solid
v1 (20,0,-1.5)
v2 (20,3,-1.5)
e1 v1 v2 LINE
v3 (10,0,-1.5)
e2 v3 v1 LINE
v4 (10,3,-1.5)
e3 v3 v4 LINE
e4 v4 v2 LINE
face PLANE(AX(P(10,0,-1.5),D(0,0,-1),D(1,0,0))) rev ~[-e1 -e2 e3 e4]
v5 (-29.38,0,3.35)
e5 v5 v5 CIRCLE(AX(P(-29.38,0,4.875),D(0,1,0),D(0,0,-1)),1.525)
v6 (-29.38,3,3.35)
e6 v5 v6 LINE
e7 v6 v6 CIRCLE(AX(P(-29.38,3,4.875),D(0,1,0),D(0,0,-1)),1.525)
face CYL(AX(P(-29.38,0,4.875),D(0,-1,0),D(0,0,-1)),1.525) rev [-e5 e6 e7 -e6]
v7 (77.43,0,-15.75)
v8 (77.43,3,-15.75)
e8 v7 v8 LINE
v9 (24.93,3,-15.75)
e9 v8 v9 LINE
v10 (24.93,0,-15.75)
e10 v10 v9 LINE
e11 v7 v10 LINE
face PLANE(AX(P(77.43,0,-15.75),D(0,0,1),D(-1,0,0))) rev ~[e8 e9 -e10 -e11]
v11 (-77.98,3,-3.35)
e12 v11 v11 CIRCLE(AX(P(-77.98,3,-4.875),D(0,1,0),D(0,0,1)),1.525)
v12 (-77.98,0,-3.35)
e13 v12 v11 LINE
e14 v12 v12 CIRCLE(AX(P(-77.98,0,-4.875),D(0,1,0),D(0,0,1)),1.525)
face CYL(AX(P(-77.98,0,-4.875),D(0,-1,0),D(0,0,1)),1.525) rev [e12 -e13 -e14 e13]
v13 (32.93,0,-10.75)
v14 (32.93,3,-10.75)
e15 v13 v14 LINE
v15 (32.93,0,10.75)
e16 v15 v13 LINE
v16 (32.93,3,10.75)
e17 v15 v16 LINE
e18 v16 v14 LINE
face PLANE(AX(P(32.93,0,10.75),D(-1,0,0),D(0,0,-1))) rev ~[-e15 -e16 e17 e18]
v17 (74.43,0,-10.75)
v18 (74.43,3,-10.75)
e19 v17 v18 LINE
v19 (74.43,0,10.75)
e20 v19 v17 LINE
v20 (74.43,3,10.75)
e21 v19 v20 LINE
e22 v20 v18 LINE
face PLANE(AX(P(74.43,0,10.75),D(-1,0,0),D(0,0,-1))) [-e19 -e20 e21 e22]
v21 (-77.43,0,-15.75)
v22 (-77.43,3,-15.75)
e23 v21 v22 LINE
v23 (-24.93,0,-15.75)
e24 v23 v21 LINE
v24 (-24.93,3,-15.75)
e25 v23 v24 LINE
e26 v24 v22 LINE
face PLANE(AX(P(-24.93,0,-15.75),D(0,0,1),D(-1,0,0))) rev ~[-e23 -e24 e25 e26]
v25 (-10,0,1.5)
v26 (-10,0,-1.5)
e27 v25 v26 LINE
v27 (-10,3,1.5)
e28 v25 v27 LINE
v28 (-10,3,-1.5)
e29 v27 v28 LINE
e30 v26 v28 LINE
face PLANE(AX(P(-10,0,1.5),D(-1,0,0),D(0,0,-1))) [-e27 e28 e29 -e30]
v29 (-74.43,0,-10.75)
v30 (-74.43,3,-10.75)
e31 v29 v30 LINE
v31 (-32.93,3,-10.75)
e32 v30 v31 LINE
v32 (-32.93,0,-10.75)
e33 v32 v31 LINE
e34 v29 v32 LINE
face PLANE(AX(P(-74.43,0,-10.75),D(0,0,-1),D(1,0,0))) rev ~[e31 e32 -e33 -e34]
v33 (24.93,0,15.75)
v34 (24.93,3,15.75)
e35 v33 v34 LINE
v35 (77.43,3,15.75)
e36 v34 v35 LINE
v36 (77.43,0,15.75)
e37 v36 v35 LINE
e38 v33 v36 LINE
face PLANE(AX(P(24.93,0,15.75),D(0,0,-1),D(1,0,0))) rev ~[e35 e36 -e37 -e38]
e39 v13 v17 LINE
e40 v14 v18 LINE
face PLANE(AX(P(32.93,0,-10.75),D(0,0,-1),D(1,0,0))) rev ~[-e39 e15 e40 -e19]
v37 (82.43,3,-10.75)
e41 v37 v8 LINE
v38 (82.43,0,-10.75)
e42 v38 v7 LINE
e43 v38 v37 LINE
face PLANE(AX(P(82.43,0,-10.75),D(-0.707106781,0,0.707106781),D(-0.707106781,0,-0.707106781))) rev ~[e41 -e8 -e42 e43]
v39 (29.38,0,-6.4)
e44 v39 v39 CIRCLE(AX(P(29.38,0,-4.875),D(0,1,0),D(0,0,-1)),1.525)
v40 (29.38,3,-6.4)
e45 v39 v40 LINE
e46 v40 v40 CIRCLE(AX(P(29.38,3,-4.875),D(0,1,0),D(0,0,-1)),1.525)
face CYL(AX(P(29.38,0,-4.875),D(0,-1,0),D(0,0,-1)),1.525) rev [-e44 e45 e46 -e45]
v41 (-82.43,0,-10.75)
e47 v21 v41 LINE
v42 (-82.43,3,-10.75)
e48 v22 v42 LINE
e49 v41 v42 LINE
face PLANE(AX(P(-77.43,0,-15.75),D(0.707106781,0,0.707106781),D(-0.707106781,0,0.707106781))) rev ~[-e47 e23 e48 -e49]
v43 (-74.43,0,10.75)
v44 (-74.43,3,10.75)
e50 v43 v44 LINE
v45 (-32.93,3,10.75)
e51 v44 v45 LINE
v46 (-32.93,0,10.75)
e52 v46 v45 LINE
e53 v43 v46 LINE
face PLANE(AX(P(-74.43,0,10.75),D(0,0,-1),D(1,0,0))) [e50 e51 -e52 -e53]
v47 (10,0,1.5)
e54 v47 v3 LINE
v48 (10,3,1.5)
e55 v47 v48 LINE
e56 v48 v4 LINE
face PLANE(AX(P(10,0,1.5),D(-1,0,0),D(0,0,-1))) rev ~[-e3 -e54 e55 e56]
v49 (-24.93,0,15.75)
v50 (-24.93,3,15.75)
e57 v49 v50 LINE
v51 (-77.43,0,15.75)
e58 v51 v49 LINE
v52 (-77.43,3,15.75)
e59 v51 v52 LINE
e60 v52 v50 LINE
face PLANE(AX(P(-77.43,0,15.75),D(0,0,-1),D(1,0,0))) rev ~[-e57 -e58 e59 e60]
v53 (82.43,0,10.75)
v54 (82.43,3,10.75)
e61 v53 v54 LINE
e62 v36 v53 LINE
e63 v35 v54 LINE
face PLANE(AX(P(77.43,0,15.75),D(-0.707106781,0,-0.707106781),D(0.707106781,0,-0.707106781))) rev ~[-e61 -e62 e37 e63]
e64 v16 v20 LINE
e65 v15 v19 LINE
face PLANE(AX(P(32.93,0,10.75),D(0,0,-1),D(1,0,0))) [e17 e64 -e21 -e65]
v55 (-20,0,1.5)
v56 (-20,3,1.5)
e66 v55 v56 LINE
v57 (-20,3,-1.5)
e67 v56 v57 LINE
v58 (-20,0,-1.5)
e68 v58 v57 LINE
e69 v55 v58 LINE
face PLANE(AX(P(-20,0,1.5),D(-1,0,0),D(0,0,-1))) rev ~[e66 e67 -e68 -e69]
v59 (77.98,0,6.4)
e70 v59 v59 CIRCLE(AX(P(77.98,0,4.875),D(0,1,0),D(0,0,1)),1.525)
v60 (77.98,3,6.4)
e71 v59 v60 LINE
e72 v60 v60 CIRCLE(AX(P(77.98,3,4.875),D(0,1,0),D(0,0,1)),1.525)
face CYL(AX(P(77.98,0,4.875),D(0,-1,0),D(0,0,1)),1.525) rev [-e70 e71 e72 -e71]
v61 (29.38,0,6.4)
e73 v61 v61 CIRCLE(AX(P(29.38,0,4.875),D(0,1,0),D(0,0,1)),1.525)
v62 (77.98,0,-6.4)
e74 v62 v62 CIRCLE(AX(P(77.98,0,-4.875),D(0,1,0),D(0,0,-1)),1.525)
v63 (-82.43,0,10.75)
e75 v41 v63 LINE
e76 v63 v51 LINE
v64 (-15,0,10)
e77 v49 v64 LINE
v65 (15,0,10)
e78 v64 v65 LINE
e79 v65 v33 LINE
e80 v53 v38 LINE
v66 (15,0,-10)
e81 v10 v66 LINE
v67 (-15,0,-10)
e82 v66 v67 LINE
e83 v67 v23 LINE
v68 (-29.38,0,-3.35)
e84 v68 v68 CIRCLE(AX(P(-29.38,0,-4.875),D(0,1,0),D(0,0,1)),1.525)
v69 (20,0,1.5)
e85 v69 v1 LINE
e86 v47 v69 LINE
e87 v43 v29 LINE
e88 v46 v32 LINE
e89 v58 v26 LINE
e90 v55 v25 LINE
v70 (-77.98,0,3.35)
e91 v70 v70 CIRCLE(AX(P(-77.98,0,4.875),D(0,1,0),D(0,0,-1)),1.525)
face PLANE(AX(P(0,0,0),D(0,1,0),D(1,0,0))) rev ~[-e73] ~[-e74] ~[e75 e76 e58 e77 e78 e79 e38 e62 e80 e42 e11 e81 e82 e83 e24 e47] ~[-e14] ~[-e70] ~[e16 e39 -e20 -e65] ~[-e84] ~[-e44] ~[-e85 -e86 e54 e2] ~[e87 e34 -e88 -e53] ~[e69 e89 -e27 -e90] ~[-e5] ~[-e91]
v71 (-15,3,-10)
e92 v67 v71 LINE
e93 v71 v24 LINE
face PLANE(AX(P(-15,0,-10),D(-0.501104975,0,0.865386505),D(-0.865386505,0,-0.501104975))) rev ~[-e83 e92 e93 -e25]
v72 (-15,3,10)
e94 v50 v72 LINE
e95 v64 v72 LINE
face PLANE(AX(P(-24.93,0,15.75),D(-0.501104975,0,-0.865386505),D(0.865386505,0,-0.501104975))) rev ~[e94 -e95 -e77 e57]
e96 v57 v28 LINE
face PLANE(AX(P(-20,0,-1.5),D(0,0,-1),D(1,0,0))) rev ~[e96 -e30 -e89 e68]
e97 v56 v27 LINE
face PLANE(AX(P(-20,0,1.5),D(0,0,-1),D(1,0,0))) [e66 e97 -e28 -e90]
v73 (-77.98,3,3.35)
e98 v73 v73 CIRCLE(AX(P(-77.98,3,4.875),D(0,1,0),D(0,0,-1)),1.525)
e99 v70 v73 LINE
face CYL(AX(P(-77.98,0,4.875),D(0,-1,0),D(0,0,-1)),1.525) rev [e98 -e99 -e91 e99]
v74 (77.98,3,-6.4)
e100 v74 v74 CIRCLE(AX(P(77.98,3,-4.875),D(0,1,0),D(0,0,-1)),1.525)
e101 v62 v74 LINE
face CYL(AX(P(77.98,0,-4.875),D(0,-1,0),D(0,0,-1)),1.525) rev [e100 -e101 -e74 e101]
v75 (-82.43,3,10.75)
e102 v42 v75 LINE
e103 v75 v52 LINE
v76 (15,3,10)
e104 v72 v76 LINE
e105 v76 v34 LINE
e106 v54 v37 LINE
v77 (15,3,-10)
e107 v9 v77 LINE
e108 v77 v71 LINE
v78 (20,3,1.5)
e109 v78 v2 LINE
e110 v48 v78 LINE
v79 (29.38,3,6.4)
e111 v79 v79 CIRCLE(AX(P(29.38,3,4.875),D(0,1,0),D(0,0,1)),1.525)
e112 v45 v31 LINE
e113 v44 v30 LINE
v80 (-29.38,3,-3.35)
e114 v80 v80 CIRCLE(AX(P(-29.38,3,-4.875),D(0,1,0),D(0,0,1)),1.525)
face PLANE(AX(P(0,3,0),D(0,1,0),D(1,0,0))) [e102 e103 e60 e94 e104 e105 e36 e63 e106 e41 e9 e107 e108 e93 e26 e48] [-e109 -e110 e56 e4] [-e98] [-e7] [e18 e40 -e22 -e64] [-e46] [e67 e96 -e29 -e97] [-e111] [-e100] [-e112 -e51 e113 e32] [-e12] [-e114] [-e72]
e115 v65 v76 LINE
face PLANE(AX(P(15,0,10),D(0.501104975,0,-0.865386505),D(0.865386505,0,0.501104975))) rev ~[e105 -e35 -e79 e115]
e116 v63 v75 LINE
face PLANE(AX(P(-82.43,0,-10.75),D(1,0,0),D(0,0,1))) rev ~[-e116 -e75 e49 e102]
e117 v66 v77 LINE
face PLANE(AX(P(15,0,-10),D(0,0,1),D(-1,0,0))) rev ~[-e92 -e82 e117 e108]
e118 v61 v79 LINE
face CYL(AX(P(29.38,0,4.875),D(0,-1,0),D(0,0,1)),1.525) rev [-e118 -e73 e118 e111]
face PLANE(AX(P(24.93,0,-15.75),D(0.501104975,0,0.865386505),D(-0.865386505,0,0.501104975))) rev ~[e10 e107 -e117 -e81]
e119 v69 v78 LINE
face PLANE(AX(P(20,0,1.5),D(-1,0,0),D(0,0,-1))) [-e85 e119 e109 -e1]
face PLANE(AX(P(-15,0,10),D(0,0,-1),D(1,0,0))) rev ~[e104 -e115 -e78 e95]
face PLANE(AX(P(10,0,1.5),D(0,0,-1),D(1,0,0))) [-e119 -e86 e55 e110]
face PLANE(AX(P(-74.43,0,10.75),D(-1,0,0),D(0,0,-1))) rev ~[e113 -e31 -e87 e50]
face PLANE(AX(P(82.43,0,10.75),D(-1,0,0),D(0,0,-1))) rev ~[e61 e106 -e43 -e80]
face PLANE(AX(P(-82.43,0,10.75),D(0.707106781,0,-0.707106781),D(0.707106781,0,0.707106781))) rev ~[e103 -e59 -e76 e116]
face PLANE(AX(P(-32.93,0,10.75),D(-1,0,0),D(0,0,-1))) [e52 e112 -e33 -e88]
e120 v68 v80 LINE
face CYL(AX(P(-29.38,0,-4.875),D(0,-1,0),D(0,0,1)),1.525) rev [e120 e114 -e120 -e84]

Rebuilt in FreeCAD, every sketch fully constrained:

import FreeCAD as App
import Part
import Sketcher


def add_polygon(sketch, points):
    """Adds a closed chain of lines whose ends are joined by coincident constraints."""
    first, n = sketch.GeometryCount, len(points)
    for a, b in zip(points, points[1:] + points[:1]):
        sketch.addGeometry(Part.LineSegment(App.Vector(*a, 0), App.Vector(*b, 0)), False)
    for i in range(n):
        sketch.addConstraint(Sketcher.Constraint("Coincident", first + i, 2, first + (i + 1) % n, 1))

doc = App.newDocument("Part")
body = doc.addObject("PartDesign::Body", "Body")

sketch1 = body.newObject("Sketcher::SketchObject", "Sketch")
sketch1.AttachmentSupport = (doc.getObject("XZ_Plane"), [""])
sketch1.MapMode = "FlatFace"
add_polygon(sketch1, [(15, -10), (-15, -10), (-24.93, -15.75), (-77.43, -15.75), (-82.43, -10.75), (-82.43, 10.75), (-77.43, 15.75), (-24.93, 15.75), (-15, 10), (15, 10), (24.93, 15.75), (77.43, 15.75), (82.43, 10.75), (82.43, -10.75), (77.43, -15.75), (24.93, -15.75)])
sketch1.addGeometry(Part.Circle(App.Vector(-77.98, 4.875, 0), App.Vector(0, 0, 1), 1.525), False)
sketch1.addGeometry(Part.Circle(App.Vector(-29.38, 4.875, 0), App.Vector(0, 0, 1), 1.525), False)
sketch1.addGeometry(Part.Circle(App.Vector(29.38, 4.875, 0), App.Vector(0, 0, 1), 1.525), False)
sketch1.addGeometry(Part.Circle(App.Vector(77.98, 4.875, 0), App.Vector(0, 0, 1), 1.525), False)
add_polygon(sketch1, [(-32.93, 10.75), (-74.43, 10.75), (-74.43, -10.75), (-32.93, -10.75)])
sketch1.addGeometry(Part.Circle(App.Vector(-77.98, -4.875, 0), App.Vector(0, 0, 1), 1.525), False)
add_polygon(sketch1, [(-10, 1.5), (-20, 1.5), (-20, -1.5), (-10, -1.5)])
sketch1.addGeometry(Part.Circle(App.Vector(-29.38, -4.875, 0), App.Vector(0, 0, 1), 1.525), False)
add_polygon(sketch1, [(20, 1.5), (10, 1.5), (10, -1.5), (20, -1.5)])
sketch1.addGeometry(Part.Circle(App.Vector(29.38, -4.875, 0), App.Vector(0, 0, 1), 1.525), False)
add_polygon(sketch1, [(74.43, 10.75), (32.93, 10.75), (32.93, -10.75), (74.43, -10.75)])
sketch1.addGeometry(Part.Circle(App.Vector(77.98, -4.875, 0), App.Vector(0, 0, 1), 1.525), False)
sketch1.addConstraint([
    Sketcher.Constraint("Horizontal", 0),
    Sketcher.Constraint("Horizontal", 2),
    Sketcher.Constraint("Vertical", 4),
    Sketcher.Constraint("Horizontal", 6),
    Sketcher.Constraint("Horizontal", 8),
    Sketcher.Constraint("Horizontal", 10),
    Sketcher.Constraint("Vertical", 12),
    Sketcher.Constraint("Horizontal", 14),
    Sketcher.Constraint("Horizontal", 20),
    Sketcher.Constraint("Vertical", 21),
    Sketcher.Constraint("Horizontal", 22),
    Sketcher.Constraint("Vertical", 23),
    Sketcher.Constraint("Horizontal", 25),
    Sketcher.Constraint("Vertical", 26),
    Sketcher.Constraint("Horizontal", 27),
    Sketcher.Constraint("Vertical", 28),
    Sketcher.Constraint("Horizontal", 30),
    Sketcher.Constraint("Vertical", 31),
    Sketcher.Constraint("Horizontal", 32),
    Sketcher.Constraint("Vertical", 33),
    Sketcher.Constraint("Horizontal", 35),
    Sketcher.Constraint("Vertical", 36),
    Sketcher.Constraint("Horizontal", 37),
    Sketcher.Constraint("Vertical", 38),
    Sketcher.Constraint("Equal", 16, 17),
    Sketcher.Constraint("Equal", 17, 18),
    Sketcher.Constraint("Equal", 18, 19),
    Sketcher.Constraint("Equal", 19, 24),
    Sketcher.Constraint("Equal", 24, 29),
    Sketcher.Constraint("Equal", 29, 34),
    Sketcher.Constraint("Equal", 34, 39),
    Sketcher.Constraint("Symmetric", 19, 3, 24, 3, -1, 1),
    Sketcher.Constraint("Symmetric", 18, 3, 29, 3, -1, 1),
    Sketcher.Constraint("Symmetric", 17, 3, 34, 3, -1, 1),
    Sketcher.Constraint("Symmetric", 16, 3, 39, 3, -1, 1),
    Sketcher.Constraint("Symmetric", 0, 2, 8, 2, -1, 1),
    Sketcher.Constraint("Symmetric", 1, 2, 9, 2, -1, 1),
    Sketcher.Constraint("Symmetric", 3, 2, 11, 2, -1, 1),
    Sketcher.Constraint("Symmetric", 5, 2, 13, 2, -1, 1),
    Sketcher.Constraint("Symmetric", 27, 2, 30, 2, -1, 1),
    Sketcher.Constraint("Symmetric", 25, 2, 32, 2, -1, 1),
    Sketcher.Constraint("Symmetric", 22, 2, 35, 2, -1, 1),
    Sketcher.Constraint("Symmetric", 20, 2, 37, 2, -1, 1),
    Sketcher.Constraint("Symmetric", 17, 3, 18, 3, -2),
    Sketcher.Constraint("Symmetric", 16, 3, 19, 3, -2),
    Sketcher.Constraint("Symmetric", 6, 2, 9, 2, -2),
    Sketcher.Constraint("Perpendicular", 3, 5),
    Sketcher.Constraint("Perpendicular", 5, 11),
    Sketcher.Constraint("Perpendicular", 11, 13),
    Sketcher.Constraint("Parallel", 7, 15),
    Sketcher.Constraint("Horizontal", 16, 3, 17, 3),
    Sketcher.Constraint("Horizontal", 4, 2, 11, 2),
    Sketcher.Constraint("Horizontal", 11, 2, 20, 2),
    Sketcher.Constraint("Horizontal", 12, 2, 21, 2),
    Sketcher.Constraint("Horizontal", 28, 2, 30, 2),
    Sketcher.Constraint("Vertical", 2, 2, 5, 2),
    Sketcher.Constraint("Vertical", 0, 2, 7, 2),
    Sketcher.Constraint("Vertical", 9, 2, 14, 2),
    Sketcher.Constraint("Diameter", 16, 3.05),
    Sketcher.Constraint("DistanceX", 0, 2, 0, 1, 30.0),
    Sketcher.Constraint("DistanceX", 25, 2, 25, 1, 10.0),
    Sketcher.Constraint("DistanceY", 26, 2, 26, 1, 3.0),
    Sketcher.Constraint("DistanceX", 2, 2, 2, 1, 52.5),
    Sketcher.Constraint("DistanceX", 20, 2, 20, 1, 41.5),
    Sketcher.Constraint("DistanceY", 4, 1, 4, 2, 21.5),
    Sketcher.Constraint("DistanceY", 0, 2, -1, 1, 10.0),
    Sketcher.Constraint("DistanceX", 25, 2, -1, 1, 20.0),
    Sketcher.Constraint("DistanceX", 3, 2, 2, 2, 5.0),
    Sketcher.Constraint("DistanceX", 5, 2, 20, 2, 3.0),
    Sketcher.Constraint("DistanceX", 16, 3, 17, 3, 48.6),
    Sketcher.Constraint("DistanceX", 16, 3, -1, 1, 77.98),
    Sketcher.Constraint("DistanceX", 1, 2, -1, 1, 24.93),
    Sketcher.Constraint("DistanceY", 24, 3, 16, 3, 9.75),
])
pad1 = body.newObject("PartDesign::Pad", "Pad")
pad1.Profile = sketch1
pad1.Length = 3
pad1.Reversed = True

doc.recompute()
